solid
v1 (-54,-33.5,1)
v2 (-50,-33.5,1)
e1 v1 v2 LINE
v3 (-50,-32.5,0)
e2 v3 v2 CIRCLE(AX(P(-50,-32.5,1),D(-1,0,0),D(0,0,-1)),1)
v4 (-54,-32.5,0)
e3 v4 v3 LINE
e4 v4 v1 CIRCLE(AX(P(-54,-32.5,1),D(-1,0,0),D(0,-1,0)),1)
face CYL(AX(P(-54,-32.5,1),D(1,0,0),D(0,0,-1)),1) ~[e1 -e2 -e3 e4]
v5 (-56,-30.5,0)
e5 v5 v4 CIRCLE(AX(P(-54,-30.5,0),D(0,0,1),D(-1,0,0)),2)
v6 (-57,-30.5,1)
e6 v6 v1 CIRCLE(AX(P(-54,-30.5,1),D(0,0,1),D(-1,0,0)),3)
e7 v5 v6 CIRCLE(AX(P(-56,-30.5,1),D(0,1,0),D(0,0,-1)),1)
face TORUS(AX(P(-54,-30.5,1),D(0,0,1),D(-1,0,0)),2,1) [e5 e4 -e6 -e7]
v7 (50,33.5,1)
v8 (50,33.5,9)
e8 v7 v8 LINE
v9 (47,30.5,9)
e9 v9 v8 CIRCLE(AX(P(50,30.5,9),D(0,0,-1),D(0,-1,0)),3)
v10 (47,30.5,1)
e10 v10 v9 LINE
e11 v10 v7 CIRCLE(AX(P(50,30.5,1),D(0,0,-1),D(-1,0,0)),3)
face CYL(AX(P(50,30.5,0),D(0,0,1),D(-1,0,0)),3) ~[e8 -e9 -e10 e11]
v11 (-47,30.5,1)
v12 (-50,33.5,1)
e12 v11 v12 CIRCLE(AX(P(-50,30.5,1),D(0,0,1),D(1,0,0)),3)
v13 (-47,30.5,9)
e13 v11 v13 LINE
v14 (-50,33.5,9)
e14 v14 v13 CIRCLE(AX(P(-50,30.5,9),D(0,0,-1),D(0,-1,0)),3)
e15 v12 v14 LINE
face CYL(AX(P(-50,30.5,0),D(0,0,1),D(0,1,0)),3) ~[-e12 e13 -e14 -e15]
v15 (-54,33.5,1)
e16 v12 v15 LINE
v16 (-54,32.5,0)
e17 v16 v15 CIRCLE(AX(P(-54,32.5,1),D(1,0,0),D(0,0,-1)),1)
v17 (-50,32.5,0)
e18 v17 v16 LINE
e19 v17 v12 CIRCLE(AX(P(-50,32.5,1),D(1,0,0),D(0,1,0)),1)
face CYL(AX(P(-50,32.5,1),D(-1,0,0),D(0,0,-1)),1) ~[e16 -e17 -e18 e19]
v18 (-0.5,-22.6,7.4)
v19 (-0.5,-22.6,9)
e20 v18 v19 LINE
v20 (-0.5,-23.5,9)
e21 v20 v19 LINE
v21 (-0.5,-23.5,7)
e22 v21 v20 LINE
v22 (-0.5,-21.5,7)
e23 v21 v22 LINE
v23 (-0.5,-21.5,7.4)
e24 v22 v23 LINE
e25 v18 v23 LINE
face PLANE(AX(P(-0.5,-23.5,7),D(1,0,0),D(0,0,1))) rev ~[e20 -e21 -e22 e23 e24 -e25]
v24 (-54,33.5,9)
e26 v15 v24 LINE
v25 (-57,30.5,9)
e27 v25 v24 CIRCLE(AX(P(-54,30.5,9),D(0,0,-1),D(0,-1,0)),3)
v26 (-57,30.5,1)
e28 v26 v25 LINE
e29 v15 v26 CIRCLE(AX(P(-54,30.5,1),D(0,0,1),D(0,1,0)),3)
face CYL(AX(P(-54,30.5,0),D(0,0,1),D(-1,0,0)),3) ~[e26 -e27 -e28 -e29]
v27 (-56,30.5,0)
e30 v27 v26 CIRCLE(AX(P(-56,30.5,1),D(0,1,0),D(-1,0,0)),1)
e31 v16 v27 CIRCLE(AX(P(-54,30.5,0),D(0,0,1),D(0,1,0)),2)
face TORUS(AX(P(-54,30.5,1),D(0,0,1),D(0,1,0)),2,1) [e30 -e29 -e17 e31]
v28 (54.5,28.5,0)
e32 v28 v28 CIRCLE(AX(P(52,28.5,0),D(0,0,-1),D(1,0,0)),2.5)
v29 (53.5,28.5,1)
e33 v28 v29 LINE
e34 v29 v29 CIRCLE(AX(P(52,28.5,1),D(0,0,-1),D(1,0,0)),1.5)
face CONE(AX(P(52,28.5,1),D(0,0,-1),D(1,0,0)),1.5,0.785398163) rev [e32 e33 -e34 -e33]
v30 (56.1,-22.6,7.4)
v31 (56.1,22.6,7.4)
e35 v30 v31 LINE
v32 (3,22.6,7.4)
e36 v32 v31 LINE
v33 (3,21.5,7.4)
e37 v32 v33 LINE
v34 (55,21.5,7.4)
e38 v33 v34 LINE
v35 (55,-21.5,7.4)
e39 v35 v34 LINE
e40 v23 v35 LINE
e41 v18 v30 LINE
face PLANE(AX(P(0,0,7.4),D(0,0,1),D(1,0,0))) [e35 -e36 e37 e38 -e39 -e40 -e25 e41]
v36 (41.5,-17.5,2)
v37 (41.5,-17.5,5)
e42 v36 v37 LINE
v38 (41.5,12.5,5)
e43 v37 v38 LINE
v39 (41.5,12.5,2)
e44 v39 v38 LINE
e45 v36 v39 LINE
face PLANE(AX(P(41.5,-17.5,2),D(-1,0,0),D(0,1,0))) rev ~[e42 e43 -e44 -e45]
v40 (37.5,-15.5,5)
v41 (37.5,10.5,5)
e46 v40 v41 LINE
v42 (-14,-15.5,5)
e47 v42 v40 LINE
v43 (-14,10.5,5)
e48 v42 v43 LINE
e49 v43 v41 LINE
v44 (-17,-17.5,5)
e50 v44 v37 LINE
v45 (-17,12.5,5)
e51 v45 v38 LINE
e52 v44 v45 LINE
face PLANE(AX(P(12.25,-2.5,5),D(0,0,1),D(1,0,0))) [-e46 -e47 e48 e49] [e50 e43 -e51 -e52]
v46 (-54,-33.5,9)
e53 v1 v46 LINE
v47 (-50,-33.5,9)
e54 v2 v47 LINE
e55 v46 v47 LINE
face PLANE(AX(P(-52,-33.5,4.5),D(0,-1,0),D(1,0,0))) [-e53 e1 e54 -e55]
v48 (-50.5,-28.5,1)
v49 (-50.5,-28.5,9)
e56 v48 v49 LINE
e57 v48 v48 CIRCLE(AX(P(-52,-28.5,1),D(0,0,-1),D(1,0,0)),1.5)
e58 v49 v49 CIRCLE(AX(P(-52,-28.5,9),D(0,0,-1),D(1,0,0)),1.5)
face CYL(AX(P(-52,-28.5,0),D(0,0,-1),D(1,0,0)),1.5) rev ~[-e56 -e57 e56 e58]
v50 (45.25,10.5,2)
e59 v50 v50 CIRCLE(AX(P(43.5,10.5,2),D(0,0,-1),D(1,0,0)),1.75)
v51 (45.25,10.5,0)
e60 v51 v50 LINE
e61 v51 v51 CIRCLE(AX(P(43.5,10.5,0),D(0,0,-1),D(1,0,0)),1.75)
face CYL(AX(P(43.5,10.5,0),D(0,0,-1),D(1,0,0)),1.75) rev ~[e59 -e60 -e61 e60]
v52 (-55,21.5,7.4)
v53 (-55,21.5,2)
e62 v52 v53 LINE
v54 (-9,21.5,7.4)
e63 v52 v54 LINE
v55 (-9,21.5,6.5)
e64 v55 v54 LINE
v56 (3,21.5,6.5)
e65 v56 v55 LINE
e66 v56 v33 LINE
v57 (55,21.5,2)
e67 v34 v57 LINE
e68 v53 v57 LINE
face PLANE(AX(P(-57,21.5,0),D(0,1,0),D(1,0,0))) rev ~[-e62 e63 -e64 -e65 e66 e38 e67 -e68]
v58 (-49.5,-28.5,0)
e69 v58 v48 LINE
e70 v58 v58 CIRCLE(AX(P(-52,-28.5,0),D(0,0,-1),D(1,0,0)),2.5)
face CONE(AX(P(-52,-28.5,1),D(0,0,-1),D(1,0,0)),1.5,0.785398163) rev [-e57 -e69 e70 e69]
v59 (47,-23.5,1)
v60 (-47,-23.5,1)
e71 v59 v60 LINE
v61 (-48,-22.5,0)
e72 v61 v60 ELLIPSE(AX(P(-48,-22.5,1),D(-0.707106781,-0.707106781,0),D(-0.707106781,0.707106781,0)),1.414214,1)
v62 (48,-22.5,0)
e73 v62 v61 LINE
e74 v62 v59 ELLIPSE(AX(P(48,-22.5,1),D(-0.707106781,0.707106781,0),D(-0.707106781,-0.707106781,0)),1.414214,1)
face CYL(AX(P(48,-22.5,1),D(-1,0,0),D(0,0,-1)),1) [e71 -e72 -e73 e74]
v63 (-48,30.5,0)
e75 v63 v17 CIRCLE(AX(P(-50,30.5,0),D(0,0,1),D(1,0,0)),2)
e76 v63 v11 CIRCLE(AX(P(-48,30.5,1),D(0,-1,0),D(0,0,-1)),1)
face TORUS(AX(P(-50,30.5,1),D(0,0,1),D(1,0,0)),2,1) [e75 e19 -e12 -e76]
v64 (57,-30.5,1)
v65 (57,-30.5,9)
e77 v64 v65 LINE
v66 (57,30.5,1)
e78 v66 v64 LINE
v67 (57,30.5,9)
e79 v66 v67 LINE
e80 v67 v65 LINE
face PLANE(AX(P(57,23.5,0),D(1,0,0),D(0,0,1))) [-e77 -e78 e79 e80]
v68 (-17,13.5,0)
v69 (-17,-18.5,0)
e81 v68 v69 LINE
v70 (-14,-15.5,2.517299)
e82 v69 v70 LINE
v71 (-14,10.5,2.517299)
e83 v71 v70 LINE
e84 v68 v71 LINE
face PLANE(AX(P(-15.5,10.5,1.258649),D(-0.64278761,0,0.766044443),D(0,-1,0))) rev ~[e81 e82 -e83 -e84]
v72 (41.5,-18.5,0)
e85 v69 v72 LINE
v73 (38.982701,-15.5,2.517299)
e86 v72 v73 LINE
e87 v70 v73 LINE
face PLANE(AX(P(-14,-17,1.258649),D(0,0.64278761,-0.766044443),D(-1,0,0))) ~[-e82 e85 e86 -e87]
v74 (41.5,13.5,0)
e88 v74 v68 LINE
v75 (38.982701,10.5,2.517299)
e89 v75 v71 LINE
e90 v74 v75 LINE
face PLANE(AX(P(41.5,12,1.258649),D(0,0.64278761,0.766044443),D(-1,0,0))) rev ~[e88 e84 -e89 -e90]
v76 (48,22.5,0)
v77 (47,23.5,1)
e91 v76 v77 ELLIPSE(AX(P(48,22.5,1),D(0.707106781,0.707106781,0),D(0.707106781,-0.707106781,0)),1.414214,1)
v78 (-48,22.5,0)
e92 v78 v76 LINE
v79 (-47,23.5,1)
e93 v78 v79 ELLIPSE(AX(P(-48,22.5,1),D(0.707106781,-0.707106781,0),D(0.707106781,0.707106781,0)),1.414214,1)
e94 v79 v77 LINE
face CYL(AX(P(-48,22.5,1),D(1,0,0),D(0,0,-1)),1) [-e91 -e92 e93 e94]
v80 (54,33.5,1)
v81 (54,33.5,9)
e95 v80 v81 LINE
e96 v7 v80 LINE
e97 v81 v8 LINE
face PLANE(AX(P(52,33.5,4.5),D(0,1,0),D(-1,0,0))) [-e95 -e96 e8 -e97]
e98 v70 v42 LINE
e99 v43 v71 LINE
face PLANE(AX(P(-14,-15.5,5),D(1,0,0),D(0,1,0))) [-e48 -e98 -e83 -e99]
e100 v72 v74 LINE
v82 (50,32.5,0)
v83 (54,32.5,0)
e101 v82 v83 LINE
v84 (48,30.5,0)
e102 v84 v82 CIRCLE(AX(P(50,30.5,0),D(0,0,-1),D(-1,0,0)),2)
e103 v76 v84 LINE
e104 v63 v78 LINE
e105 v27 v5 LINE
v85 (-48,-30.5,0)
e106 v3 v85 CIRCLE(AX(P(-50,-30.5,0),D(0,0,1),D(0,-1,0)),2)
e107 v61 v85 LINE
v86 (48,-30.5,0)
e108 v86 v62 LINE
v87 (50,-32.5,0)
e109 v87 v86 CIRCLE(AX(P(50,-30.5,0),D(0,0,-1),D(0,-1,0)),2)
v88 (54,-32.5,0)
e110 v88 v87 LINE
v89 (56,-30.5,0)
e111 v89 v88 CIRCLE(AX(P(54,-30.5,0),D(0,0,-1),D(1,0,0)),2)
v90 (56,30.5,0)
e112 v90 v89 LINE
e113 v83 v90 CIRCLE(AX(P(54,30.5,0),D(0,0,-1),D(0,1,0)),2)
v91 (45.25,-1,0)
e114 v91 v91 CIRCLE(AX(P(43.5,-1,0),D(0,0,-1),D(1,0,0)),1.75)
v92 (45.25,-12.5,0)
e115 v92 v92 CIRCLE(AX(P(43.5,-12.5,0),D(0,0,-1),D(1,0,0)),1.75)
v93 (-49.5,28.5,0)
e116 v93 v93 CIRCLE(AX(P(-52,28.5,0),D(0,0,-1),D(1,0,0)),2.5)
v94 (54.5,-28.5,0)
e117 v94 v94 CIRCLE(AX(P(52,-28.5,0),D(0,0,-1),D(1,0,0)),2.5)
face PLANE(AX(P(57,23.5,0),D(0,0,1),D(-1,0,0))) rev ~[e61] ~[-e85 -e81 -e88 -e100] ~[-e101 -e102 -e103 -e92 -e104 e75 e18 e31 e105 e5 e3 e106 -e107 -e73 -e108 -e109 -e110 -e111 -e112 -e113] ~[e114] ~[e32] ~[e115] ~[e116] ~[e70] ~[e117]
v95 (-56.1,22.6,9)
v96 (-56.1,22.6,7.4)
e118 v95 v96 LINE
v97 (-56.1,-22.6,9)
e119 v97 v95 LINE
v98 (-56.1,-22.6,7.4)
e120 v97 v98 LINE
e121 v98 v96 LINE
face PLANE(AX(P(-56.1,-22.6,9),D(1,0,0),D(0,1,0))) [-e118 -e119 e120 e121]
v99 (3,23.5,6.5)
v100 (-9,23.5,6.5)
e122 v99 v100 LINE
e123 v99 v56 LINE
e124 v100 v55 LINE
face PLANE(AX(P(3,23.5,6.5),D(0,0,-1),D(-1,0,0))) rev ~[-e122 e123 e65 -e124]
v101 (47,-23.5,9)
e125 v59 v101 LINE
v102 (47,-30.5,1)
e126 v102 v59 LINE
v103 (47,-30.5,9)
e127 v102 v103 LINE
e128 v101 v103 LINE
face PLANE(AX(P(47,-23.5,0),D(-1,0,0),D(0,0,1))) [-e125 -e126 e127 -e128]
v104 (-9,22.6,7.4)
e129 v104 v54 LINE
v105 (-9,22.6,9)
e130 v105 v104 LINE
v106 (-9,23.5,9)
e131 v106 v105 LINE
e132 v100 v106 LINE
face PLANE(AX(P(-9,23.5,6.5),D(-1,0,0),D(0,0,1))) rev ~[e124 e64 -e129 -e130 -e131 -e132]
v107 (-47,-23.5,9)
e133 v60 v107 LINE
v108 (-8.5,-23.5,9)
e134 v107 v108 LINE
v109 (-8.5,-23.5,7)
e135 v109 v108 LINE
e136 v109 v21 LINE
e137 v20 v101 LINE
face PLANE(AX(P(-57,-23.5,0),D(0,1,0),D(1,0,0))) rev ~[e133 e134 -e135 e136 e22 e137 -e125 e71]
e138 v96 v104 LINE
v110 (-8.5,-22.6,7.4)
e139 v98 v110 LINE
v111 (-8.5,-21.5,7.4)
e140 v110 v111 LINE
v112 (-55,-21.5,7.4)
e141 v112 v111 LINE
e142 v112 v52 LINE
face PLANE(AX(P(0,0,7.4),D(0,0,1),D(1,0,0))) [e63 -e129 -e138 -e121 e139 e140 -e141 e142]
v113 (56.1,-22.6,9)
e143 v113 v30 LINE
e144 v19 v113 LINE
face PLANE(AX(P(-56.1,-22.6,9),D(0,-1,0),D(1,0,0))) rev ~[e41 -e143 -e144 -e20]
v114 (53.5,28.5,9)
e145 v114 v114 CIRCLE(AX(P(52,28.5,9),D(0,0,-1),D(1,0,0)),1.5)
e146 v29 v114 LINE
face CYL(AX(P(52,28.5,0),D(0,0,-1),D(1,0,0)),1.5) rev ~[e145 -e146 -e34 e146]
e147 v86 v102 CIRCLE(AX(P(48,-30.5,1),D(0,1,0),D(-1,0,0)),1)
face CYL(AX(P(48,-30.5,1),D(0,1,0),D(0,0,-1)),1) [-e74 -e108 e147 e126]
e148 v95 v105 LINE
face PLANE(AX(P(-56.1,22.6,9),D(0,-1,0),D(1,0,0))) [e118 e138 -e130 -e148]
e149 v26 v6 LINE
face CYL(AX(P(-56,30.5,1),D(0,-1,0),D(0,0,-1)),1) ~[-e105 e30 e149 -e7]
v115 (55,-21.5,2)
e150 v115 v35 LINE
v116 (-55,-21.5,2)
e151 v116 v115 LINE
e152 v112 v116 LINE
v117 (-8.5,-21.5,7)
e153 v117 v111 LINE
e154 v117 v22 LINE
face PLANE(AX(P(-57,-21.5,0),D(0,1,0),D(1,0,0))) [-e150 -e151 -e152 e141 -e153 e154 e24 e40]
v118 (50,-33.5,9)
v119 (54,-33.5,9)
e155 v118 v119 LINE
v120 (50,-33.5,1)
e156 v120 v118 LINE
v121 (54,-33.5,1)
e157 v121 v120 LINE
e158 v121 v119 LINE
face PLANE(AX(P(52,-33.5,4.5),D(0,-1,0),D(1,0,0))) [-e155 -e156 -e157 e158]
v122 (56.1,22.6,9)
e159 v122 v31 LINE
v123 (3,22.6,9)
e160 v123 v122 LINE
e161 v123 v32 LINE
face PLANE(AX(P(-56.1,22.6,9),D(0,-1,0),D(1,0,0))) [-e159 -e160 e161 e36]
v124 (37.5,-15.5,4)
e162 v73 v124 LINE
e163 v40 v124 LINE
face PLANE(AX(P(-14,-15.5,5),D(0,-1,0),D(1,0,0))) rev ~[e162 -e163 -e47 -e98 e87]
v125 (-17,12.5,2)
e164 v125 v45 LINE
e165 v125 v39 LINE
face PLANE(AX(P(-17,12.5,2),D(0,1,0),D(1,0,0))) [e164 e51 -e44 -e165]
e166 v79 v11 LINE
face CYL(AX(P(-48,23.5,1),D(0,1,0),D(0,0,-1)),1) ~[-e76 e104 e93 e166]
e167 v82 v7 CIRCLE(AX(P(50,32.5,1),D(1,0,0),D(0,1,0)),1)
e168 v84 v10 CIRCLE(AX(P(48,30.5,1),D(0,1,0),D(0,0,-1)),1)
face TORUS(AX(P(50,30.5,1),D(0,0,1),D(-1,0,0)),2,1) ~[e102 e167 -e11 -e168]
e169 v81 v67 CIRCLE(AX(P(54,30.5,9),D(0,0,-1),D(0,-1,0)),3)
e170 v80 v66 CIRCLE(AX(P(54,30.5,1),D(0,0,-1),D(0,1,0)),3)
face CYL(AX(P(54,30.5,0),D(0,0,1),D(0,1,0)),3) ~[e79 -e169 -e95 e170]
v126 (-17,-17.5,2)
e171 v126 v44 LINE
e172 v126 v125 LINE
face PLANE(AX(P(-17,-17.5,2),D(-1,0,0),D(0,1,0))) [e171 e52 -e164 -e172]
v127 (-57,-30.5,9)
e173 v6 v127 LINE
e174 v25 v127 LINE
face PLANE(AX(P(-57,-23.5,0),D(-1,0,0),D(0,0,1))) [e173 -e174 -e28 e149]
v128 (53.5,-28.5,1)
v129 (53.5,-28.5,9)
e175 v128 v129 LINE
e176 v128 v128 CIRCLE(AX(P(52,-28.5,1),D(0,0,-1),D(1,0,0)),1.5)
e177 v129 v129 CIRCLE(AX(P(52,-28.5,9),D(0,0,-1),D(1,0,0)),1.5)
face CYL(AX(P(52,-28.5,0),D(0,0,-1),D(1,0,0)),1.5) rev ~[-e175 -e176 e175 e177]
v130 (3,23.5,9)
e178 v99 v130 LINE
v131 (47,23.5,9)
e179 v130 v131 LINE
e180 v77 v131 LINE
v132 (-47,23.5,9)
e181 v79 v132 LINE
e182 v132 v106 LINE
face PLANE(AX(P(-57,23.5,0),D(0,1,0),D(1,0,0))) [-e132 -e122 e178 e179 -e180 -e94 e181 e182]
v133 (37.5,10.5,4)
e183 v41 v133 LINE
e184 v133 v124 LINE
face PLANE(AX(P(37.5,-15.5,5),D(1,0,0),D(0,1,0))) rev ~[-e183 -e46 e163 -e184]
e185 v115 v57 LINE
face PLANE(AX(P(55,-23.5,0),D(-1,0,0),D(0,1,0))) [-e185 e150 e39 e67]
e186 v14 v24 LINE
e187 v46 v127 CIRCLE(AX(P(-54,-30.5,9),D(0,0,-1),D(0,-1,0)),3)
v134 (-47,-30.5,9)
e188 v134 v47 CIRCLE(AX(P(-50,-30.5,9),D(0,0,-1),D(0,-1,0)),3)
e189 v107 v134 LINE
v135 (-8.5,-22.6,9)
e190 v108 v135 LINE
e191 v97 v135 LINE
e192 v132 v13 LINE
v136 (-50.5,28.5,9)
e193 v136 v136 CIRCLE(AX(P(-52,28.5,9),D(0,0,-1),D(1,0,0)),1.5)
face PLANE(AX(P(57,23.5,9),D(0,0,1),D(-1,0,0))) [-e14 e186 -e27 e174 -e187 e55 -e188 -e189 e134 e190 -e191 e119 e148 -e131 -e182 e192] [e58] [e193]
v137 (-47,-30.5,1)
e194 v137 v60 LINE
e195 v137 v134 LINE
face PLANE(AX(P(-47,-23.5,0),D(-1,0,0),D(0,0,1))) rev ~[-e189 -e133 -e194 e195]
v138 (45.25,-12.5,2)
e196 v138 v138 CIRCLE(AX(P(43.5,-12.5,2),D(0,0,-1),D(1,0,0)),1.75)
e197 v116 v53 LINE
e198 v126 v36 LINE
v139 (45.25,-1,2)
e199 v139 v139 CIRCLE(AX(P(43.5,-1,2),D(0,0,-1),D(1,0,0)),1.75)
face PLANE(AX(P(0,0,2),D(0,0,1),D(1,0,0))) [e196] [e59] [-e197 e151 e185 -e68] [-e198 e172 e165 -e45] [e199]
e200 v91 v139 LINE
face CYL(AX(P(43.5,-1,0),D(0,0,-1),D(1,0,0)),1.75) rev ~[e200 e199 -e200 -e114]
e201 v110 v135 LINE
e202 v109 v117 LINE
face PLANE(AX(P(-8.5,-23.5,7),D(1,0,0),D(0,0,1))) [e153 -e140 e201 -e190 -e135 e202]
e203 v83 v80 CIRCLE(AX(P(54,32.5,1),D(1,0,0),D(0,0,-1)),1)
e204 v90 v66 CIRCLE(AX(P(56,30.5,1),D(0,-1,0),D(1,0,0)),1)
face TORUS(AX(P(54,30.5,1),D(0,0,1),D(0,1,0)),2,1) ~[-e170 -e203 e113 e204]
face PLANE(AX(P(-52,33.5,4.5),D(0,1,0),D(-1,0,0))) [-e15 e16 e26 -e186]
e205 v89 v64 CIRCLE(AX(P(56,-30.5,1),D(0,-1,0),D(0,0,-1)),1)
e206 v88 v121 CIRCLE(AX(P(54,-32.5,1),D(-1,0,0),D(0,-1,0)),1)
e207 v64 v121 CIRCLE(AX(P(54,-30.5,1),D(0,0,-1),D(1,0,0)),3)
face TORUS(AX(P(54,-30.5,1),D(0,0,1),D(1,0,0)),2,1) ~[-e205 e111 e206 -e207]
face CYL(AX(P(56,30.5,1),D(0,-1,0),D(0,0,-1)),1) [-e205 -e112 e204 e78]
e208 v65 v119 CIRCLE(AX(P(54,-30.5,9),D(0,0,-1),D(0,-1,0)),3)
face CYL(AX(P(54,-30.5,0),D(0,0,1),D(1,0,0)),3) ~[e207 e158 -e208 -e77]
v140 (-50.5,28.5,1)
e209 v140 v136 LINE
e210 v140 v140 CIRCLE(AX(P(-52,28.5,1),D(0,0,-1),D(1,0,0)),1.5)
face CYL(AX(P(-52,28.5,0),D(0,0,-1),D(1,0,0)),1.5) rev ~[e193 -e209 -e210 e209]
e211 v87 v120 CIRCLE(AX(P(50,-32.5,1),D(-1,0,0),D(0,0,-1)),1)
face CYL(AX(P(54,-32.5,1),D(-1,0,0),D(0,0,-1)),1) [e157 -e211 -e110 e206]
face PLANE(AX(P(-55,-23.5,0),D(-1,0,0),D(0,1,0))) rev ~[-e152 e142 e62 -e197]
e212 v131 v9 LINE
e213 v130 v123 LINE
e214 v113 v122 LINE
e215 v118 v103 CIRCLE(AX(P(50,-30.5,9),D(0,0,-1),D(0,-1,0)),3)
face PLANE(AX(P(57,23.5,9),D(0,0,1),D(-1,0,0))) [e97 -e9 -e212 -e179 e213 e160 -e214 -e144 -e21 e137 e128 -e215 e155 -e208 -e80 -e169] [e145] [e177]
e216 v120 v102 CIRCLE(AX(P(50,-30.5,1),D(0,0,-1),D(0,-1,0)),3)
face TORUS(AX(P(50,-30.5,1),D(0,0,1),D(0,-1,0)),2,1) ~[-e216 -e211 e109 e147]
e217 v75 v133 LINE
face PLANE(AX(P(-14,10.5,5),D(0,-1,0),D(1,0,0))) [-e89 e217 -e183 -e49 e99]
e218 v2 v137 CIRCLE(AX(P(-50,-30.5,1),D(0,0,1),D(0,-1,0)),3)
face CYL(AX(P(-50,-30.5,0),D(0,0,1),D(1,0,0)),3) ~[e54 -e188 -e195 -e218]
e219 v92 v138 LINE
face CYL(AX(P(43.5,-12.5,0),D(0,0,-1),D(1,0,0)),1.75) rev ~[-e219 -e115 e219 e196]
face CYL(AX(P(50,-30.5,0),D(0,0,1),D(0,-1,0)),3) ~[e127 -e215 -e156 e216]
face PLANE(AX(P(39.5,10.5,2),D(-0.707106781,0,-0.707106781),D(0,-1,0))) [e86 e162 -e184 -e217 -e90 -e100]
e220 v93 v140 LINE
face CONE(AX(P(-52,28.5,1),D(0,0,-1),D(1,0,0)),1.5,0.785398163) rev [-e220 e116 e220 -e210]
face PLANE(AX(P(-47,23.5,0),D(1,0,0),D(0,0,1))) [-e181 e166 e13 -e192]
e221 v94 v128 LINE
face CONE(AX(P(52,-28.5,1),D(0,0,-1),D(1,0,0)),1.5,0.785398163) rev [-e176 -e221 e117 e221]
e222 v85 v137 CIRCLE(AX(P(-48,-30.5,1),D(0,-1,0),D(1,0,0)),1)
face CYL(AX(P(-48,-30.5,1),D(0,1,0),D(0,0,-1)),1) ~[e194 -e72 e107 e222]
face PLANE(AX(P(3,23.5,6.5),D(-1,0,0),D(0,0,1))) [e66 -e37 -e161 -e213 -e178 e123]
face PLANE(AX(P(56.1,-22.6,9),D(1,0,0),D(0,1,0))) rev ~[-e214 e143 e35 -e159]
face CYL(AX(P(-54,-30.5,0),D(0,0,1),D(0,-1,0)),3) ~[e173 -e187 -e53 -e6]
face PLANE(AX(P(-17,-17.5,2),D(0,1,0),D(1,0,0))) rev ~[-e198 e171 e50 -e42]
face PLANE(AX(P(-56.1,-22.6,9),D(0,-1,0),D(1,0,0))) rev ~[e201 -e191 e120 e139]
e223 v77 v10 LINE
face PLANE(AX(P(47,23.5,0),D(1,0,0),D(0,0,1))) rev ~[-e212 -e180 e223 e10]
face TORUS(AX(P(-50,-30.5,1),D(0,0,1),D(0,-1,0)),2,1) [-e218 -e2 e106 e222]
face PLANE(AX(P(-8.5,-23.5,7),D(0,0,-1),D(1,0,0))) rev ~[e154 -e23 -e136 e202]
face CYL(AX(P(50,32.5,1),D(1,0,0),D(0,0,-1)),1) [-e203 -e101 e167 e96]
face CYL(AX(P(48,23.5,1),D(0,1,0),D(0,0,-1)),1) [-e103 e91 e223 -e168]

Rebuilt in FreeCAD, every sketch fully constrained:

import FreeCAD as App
import Part
import Sketcher
from FreeCAD import Vector


def edges_at(feature, points):
    """Names of the edges that pass closest to the given points."""
    edges = feature.Shape.Edges
    near = lambda p: min(range(len(edges)), key=lambda i: edges[i].distToShape(Part.Vertex(*p))[0])
    return sorted({f"Edge{near(p) + 1}" for p in points})


def faces_at(feature, points):
    """Names of the faces that lie closest to the given points."""
    faces = feature.Shape.Faces
    near = lambda p: min(range(len(faces)), key=lambda i: faces[i].distToShape(Part.Vertex(*p))[0])
    return sorted({f"Face{near(p) + 1}" for p in points})

doc = App.newDocument("Part")
body = doc.addObject("PartDesign::Body", "Body")

sketch1 = doc.addObject("Sketcher::SketchObject", "Sketch")
body.addObject(sketch1)
sketch1.AttachmentSupport = (doc.XY_Plane, [""])
sketch1.MapMode = "FlatFace"
sketch1.addGeometry(Part.LineSegment(Vector(-57, 23.5, 0), Vector(-57, -23.5, 0)), False)
sketch1.addGeometry(Part.LineSegment(Vector(-57, -23.5, 0), Vector(57, -23.5, 0)), False)
sketch1.addGeometry(Part.LineSegment(Vector(57, -23.5, 0), Vector(57, 23.5, 0)), False)
sketch1.addGeometry(Part.LineSegment(Vector(57, 23.5, 0), Vector(-57, 23.5, 0)), False)
sketch1.addConstraint(Sketcher.Constraint("Coincident", 0, 2, 1, 1))
sketch1.addConstraint(Sketcher.Constraint("Coincident", 1, 2, 2, 1))
sketch1.addConstraint(Sketcher.Constraint("Coincident", 2, 2, 3, 1))
sketch1.addConstraint(Sketcher.Constraint("Coincident", 3, 2, 0, 1))
sketch1.addConstraint(Sketcher.Constraint("Vertical", 0))
sketch1.addConstraint(Sketcher.Constraint("Horizontal", 1))
sketch1.addConstraint(Sketcher.Constraint("Vertical", 2))
sketch1.addConstraint(Sketcher.Constraint("Horizontal", 3))
sketch1.addConstraint(Sketcher.Constraint("Symmetric", 0, 2, 2, 2, -1, 1))
sketch1.addConstraint(Sketcher.Constraint("DistanceX", 1, 1, 1, 2, 114.0))
sketch1.addConstraint(Sketcher.Constraint("DistanceY", 0, 2, 0, 1, 47.0))
pad1 = doc.addObject("PartDesign::Pad", "Pad")
body.addObject(pad1)
pad1.Profile = sketch1
pad1.Length = 9
doc.recompute()

thickness = doc.addObject("PartDesign::Thickness", "Thickness")
body.addObject(thickness)
thickness.Base = (pad1, faces_at(pad1, [(0, 0, 9)]))
thickness.Value = 2
thickness.Reversed = True
thickness.Join = "Arc"

sketch2 = doc.addObject("Sketcher::SketchObject", "Sketch001")
body.addObject(sketch2)
sketch2.AttachmentSupport = (doc.XZ_Plane, [""])
sketch2.MapMode = "FlatFace"
sketch2.AttachmentOffset = App.Placement(Vector(0, 0, 23.5), App.Rotation())
sketch2.addGeometry(Part.LineSegment(Vector(-57, 9, 0), Vector(-57, 0, 0)), False)
sketch2.addGeometry(Part.LineSegment(Vector(-57, 0, 0), Vector(-47, 0, 0)), False)
sketch2.addGeometry(Part.LineSegment(Vector(-47, 0, 0), Vector(-47, 9, 0)), False)
sketch2.addGeometry(Part.LineSegment(Vector(-47, 9, 0), Vector(-57, 9, 0)), False)
sketch2.addGeometry(Part.LineSegment(Vector(47, 9, 0), Vector(47, 0, 0)), False)
sketch2.addGeometry(Part.LineSegment(Vector(47, 0, 0), Vector(57, 0, 0)), False)
sketch2.addGeometry(Part.LineSegment(Vector(57, 0, 0), Vector(57, 9, 0)), False)
sketch2.addGeometry(Part.LineSegment(Vector(57, 9, 0), Vector(47, 9, 0)), False)
sketch2.addConstraint(Sketcher.Constraint("Coincident", 0, 2, 1, 1))
sketch2.addConstraint(Sketcher.Constraint("Coincident", 1, 2, 2, 1))
sketch2.addConstraint(Sketcher.Constraint("Coincident", 2, 2, 3, 1))
sketch2.addConstraint(Sketcher.Constraint("Coincident", 3, 2, 0, 1))
sketch2.addConstraint(Sketcher.Constraint("Coincident", 4, 2, 5, 1))
sketch2.addConstraint(Sketcher.Constraint("Coincident", 5, 2, 6, 1))
sketch2.addConstraint(Sketcher.Constraint("Coincident", 6, 2, 7, 1))
sketch2.addConstraint(Sketcher.Constraint("Coincident", 7, 2, 4, 1))
sketch2.addConstraint(Sketcher.Constraint("Vertical", 0))
sketch2.addConstraint(Sketcher.Constraint("Horizontal", 1))
sketch2.addConstraint(Sketcher.Constraint("Vertical", 2))
sketch2.addConstraint(Sketcher.Constraint("Horizontal", 3))
sketch2.addConstraint(Sketcher.Constraint("Vertical", 4))
sketch2.addConstraint(Sketcher.Constraint("Horizontal", 5))
sketch2.addConstraint(Sketcher.Constraint("Vertical", 6))
sketch2.addConstraint(Sketcher.Constraint("Horizontal", 7))
sketch2.addConstraint(Sketcher.Constraint("Symmetric", 1, 2, 4, 2, -1, 1))
sketch2.addConstraint(Sketcher.Constraint("Symmetric", 0, 2, 5, 2, -2))
sketch2.addConstraint(Sketcher.Constraint("Horizontal", 3, 2, 6, 2))
sketch2.addConstraint(Sketcher.Constraint("DistanceX", 1, 1, 1, 2, 10.0))
sketch2.addConstraint(Sketcher.Constraint("DistanceY", 0, 2, 0, 1, 9.0))
sketch2.addConstraint(Sketcher.Constraint("DistanceX", 0, 2, -1, 1, 57.0))
pad2 = doc.addObject("PartDesign::Pad", "Pad001")
body.addObject(pad2)
pad2.Profile = sketch2
pad2.Length = 10

sketch3 = doc.addObject("Sketcher::SketchObject", "Sketch002")
body.addObject(sketch3)
sketch3.AttachmentSupport = (doc.XZ_Plane, [""])
sketch3.MapMode = "FlatFace"
sketch3.AttachmentOffset = App.Placement(Vector(0, 0, -23.5), App.Rotation())
sketch3.addGeometry(Part.LineSegment(Vector(57, 9, 0), Vector(57, 0, 0)), False)
sketch3.addGeometry(Part.LineSegment(Vector(57, 0, 0), Vector(47, 0, 0)), False)
sketch3.addGeometry(Part.LineSegment(Vector(47, 0, 0), Vector(47, 9, 0)), False)
sketch3.addGeometry(Part.LineSegment(Vector(47, 9, 0), Vector(57, 9, 0)), False)
sketch3.addGeometry(Part.LineSegment(Vector(-47, 9, 0), Vector(-47, 0, 0)), False)
sketch3.addGeometry(Part.LineSegment(Vector(-47, 0, 0), Vector(-57, 0, 0)), False)
sketch3.addGeometry(Part.LineSegment(Vector(-57, 0, 0), Vector(-57, 9, 0)), False)
sketch3.addGeometry(Part.LineSegment(Vector(-57, 9, 0), Vector(-47, 9, 0)), False)
sketch3.addConstraint(Sketcher.Constraint("Coincident", 0, 2, 1, 1))
sketch3.addConstraint(Sketcher.Constraint("Coincident", 1, 2, 2, 1))
sketch3.addConstraint(Sketcher.Constraint("Coincident", 2, 2, 3, 1))
sketch3.addConstraint(Sketcher.Constraint("Coincident", 3, 2, 0, 1))
sketch3.addConstraint(Sketcher.Constraint("Coincident", 4, 2, 5, 1))
sketch3.addConstraint(Sketcher.Constraint("Coincident", 5, 2, 6, 1))
sketch3.addConstraint(Sketcher.Constraint("Coincident", 6, 2, 7, 1))
sketch3.addConstraint(Sketcher.Constraint("Coincident", 7, 2, 4, 1))
sketch3.addConstraint(Sketcher.Constraint("Vertical", 0))
sketch3.addConstraint(Sketcher.Constraint("Horizontal", 1))
sketch3.addConstraint(Sketcher.Constraint("Vertical", 2))
sketch3.addConstraint(Sketcher.Constraint("Horizontal", 3))
sketch3.addConstraint(Sketcher.Constraint("Vertical", 4))
sketch3.addConstraint(Sketcher.Constraint("Horizontal", 5))
sketch3.addConstraint(Sketcher.Constraint("Vertical", 6))
sketch3.addConstraint(Sketcher.Constraint("Horizontal", 7))
sketch3.addConstraint(Sketcher.Constraint("Symmetric", 1, 2, 4, 2, -1, 1))
sketch3.addConstraint(Sketcher.Constraint("Symmetric", 0, 2, 5, 2, -2))
sketch3.addConstraint(Sketcher.Constraint("Horizontal", 3, 2, 6, 2))
sketch3.addConstraint(Sketcher.Constraint("DistanceX", 1, 2, 1, 1, 10.0))
sketch3.addConstraint(Sketcher.Constraint("DistanceY", 0, 2, 0, 1, 9.0))
sketch3.addConstraint(Sketcher.Constraint("DistanceX", -1, 1, 0, 2, 57.0))
pad3 = doc.addObject("PartDesign::Pad", "Pad002")
body.addObject(pad3)
pad3.Profile = sketch3
pad3.Length = 10
pad3.Reversed = True

sketch4 = doc.addObject("Sketcher::SketchObject", "Sketch003")
body.addObject(sketch4)
sketch4.AttachmentSupport = (doc.XY_Plane, [""])
sketch4.MapMode = "FlatFace"
sketch4.AttachmentOffset = App.Placement(Vector(0, 0, 9), App.Rotation())
sketch4.addGeometry(Part.LineSegment(Vector(-56.1, 22.6, 0), Vector(-56.1, -22.6, 0)), False)
sketch4.addGeometry(Part.LineSegment(Vector(-56.1, -22.6, 0), Vector(56.1, -22.6, 0)), False)
sketch4.addGeometry(Part.LineSegment(Vector(56.1, -22.6, 0), Vector(56.1, 22.6, 0)), False)
sketch4.addGeometry(Part.LineSegment(Vector(56.1, 22.6, 0), Vector(-56.1, 22.6, 0)), False)
sketch4.addConstraint(Sketcher.Constraint("Coincident", 0, 2, 1, 1))
sketch4.addConstraint(Sketcher.Constraint("Coincident", 1, 2, 2, 1))
sketch4.addConstraint(Sketcher.Constraint("Coincident", 2, 2, 3, 1))
sketch4.addConstraint(Sketcher.Constraint("Coincident", 3, 2, 0, 1))
sketch4.addConstraint(Sketcher.Constraint("Vertical", 0))
sketch4.addConstraint(Sketcher.Constraint("Horizontal", 1))
sketch4.addConstraint(Sketcher.Constraint("Vertical", 2))
sketch4.addConstraint(Sketcher.Constraint("Horizontal", 3))
sketch4.addConstraint(Sketcher.Constraint("Symmetric", 0, 2, 2, 2, -1, 1))
sketch4.addConstraint(Sketcher.Constraint("DistanceX", 1, 1, 1, 2, 112.2))
sketch4.addConstraint(Sketcher.Constraint("DistanceY", 0, 2, 0, 1, 45.2))
pocket1 = doc.addObject("PartDesign::Pocket", "Pocket")
body.addObject(pocket1)
pocket1.Profile = sketch4
pocket1.Length = 1.6

sketch5 = doc.addObject("Sketcher::SketchObject", "Sketch004")
body.addObject(sketch5)
sketch5.AttachmentSupport = (doc.XY_Plane, [""])
sketch5.MapMode = "FlatFace"
sketch5.addGeometry(Part.Circle(Vector(-52, -28.5, 0), Vector(0, 0, 1), 1.5), False)
sketch5.addGeometry(Part.Circle(Vector(52, -28.5, 0), Vector(0, 0, 1), 1.5), False)
sketch5.addGeometry(Part.Circle(Vector(52, 28.5, 0), Vector(0, 0, 1), 1.5), False)
sketch5.addGeometry(Part.Circle(Vector(-52, 28.5, 0), Vector(0, 0, 1), 1.5), False)
sketch5.addConstraint(Sketcher.Constraint("Equal", 0, 1))
sketch5.addConstraint(Sketcher.Constraint("Equal", 1, 2))
sketch5.addConstraint(Sketcher.Constraint("Equal", 2, 3))
sketch5.addConstraint(Sketcher.Constraint("Symmetric", 0, 3, 2, 3, -1, 1))
sketch5.addConstraint(Sketcher.Constraint("Symmetric", 1, 3, 3, 3, -1, 1))
sketch5.addConstraint(Sketcher.Constraint("Symmetric", 0, 3, 1, 3, -2))
sketch5.addConstraint(Sketcher.Constraint("Diameter", 0, 3.0))
sketch5.addConstraint(Sketcher.Constraint("DistanceX", 0, 3, -1, 1, 52.0))
sketch5.addConstraint(Sketcher.Constraint("DistanceY", 1, 3, 2, 3, 57.0))
pocket2 = doc.addObject("PartDesign::Pocket", "Pocket001")
body.addObject(pocket2)
pocket2.Profile = sketch5
pocket2.Length = 9
pocket2.Reversed = True

sketch6 = doc.addObject("Sketcher::SketchObject", "Sketch005")
body.addObject(sketch6)
sketch6.AttachmentSupport = (doc.XY_Plane, [""])
sketch6.MapMode = "FlatFace"
sketch6.addGeometry(Part.LineSegment(Vector(-14, -15.5, 0), Vector(-14, 10.5, 0)), False)
sketch6.addGeometry(Part.LineSegment(Vector(-14, 10.5, 0), Vector(37.5, 10.5, 0)), False)
sketch6.addGeometry(Part.LineSegment(Vector(37.5, 10.5, 0), Vector(37.5, -15.5, 0)), False)
sketch6.addGeometry(Part.LineSegment(Vector(37.5, -15.5, 0), Vector(-14, -15.5, 0)), False)
sketch6.addConstraint(Sketcher.Constraint("Coincident", 0, 2, 1, 1))
sketch6.addConstraint(Sketcher.Constraint("Coincident", 1, 2, 2, 1))
sketch6.addConstraint(Sketcher.Constraint("Coincident", 2, 2, 3, 1))
sketch6.addConstraint(Sketcher.Constraint("Coincident", 3, 2, 0, 1))
sketch6.addConstraint(Sketcher.Constraint("Vertical", 0))
sketch6.addConstraint(Sketcher.Constraint("Horizontal", 1))
sketch6.addConstraint(Sketcher.Constraint("Vertical", 2))
sketch6.addConstraint(Sketcher.Constraint("Horizontal", 3))
sketch6.addConstraint(Sketcher.Constraint("DistanceY", 0, 1, 0, 2, 26.0))
sketch6.addConstraint(Sketcher.Constraint("DistanceX", 1, 1, 1, 2, 51.5))
sketch6.addConstraint(Sketcher.Constraint("DistanceX", 0, 2, -1, 1, 14.0))
sketch6.addConstraint(Sketcher.Constraint("DistanceY", -1, 1, 0, 2, 10.5))
pocket3 = doc.addObject("PartDesign::Pocket", "Pocket002")
body.addObject(pocket3)
pocket3.Profile = sketch6
pocket3.Length = 7
pocket3.Reversed = True

sketch7 = doc.addObject("Sketcher::SketchObject", "Sketch006")
body.addObject(sketch7)
sketch7.AttachmentSupport = (doc.XY_Plane, [""])
sketch7.MapMode = "FlatFace"
sketch7.AttachmentOffset = App.Placement(Vector(0, 0, 2), App.Rotation())
sketch7.addGeometry(Part.LineSegment(Vector(-17, 12.5, 0), Vector(-17, -17.5, 0)), False)
sketch7.addGeometry(Part.LineSegment(Vector(-17, -17.5, 0), Vector(41.5, -17.5, 0)), False)
sketch7.addGeometry(Part.LineSegment(Vector(41.5, -17.5, 0), Vector(41.5, 12.5, 0)), False)
sketch7.addGeometry(Part.LineSegment(Vector(41.5, 12.5, 0), Vector(-17, 12.5, 0)), False)
sketch7.addConstraint(Sketcher.Constraint("Coincident", 0, 2, 1, 1))
sketch7.addConstraint(Sketcher.Constraint("Coincident", 1, 2, 2, 1))
sketch7.addConstraint(Sketcher.Constraint("Coincident", 2, 2, 3, 1))
sketch7.addConstraint(Sketcher.Constraint("Coincident", 3, 2, 0, 1))
sketch7.addConstraint(Sketcher.Constraint("Vertical", 0))
sketch7.addConstraint(Sketcher.Constraint("Horizontal", 1))
sketch7.addConstraint(Sketcher.Constraint("Vertical", 2))
sketch7.addConstraint(Sketcher.Constraint("Horizontal", 3))
sketch7.addConstraint(Sketcher.Constraint("DistanceY", 0, 2, 0, 1, 30.0))
sketch7.addConstraint(Sketcher.Constraint("DistanceX", 1, 1, 1, 2, 58.5))
sketch7.addConstraint(Sketcher.Constraint("DistanceX", 0, 2, -1, 1, 17.0))
sketch7.addConstraint(Sketcher.Constraint("DistanceY", 0, 2, -1, 1, 17.5))
pad4 = doc.addObject("PartDesign::Pad", "Pad003")
body.addObject(pad4)
pad4.Profile = sketch7
pad4.Length = 3

sketch8 = doc.addObject("Sketcher::SketchObject", "Sketch007")
body.addObject(sketch8)
sketch8.AttachmentSupport = (doc.XY_Plane, [""])
sketch8.MapMode = "FlatFace"
sketch8.AttachmentOffset = App.Placement(Vector(0, 0, 5), App.Rotation())
sketch8.addGeometry(Part.LineSegment(Vector(-14, 10.5, 0), Vector(-14, -15.5, 0)), False)
sketch8.addGeometry(Part.LineSegment(Vector(-14, -15.5, 0), Vector(37.5, -15.5, 0)), False)
sketch8.addGeometry(Part.LineSegment(Vector(37.5, -15.5, 0), Vector(37.5, 10.5, 0)), False)
sketch8.addGeometry(Part.LineSegment(Vector(37.5, 10.5, 0), Vector(-14, 10.5, 0)), False)
sketch8.addConstraint(Sketcher.Constraint("Coincident", 0, 2, 1, 1))
sketch8.addConstraint(Sketcher.Constraint("Coincident", 1, 2, 2, 1))
sketch8.addConstraint(Sketcher.Constraint("Coincident", 2, 2, 3, 1))
sketch8.addConstraint(Sketcher.Constraint("Coincident", 3, 2, 0, 1))
sketch8.addConstraint(Sketcher.Constraint("Vertical", 0))
sketch8.addConstraint(Sketcher.Constraint("Horizontal", 1))
sketch8.addConstraint(Sketcher.Constraint("Vertical", 2))
sketch8.addConstraint(Sketcher.Constraint("Horizontal", 3))
sketch8.addConstraint(Sketcher.Constraint("DistanceY", 0, 2, 0, 1, 26.0))
sketch8.addConstraint(Sketcher.Constraint("DistanceX", 1, 1, 1, 2, 51.5))
sketch8.addConstraint(Sketcher.Constraint("DistanceX", 0, 2, -1, 1, 14.0))
sketch8.addConstraint(Sketcher.Constraint("DistanceY", 0, 2, -1, 1, 15.5))
pocket4 = doc.addObject("PartDesign::Pocket", "Pocket003")
body.addObject(pocket4)
pocket4.Profile = sketch8
pocket4.Length = 3

sketch9 = doc.addObject("Sketcher::SketchObject", "Sketch008")
body.addObject(sketch9)
sketch9.AttachmentSupport = (doc.XY_Plane, [""])
sketch9.MapMode = "FlatFace"
sketch9.addGeometry(Part.Circle(Vector(43.5, 10.5, 0), Vector(0, 0, 1), 1.75), False)
sketch9.addGeometry(Part.Circle(Vector(43.5, -1, 0), Vector(0, 0, 1), 1.75), False)
sketch9.addGeometry(Part.Circle(Vector(43.5, -12.5, 0), Vector(0, 0, 1), 1.75), False)
sketch9.addConstraint(Sketcher.Constraint("Equal", 0, 1))
sketch9.addConstraint(Sketcher.Constraint("Equal", 1, 2))
sketch9.addConstraint(Sketcher.Constraint("Vertical", 0, 3, 1, 3))
sketch9.addConstraint(Sketcher.Constraint("Vertical", 1, 3, 2, 3))
sketch9.addConstraint(Sketcher.Constraint("Diameter", 0, 3.5))
sketch9.addConstraint(Sketcher.Constraint("DistanceY", 1, 3, -1, 1, 1.0))
sketch9.addConstraint(Sketcher.Constraint("DistanceY", 2, 3, 0, 3, 23.0))
sketch9.addConstraint(Sketcher.Constraint("DistanceX", -1, 1, 0, 3, 43.5))
sketch9.addConstraint(Sketcher.Constraint("DistanceY", -1, 1, 0, 3, 10.5))
pocket5 = doc.addObject("PartDesign::Pocket", "Pocket004")
body.addObject(pocket5)
pocket5.Profile = sketch9
pocket5.Length = 2
pocket5.Reversed = True
doc.recompute()

chamfer = doc.addObject("PartDesign::Chamfer", "Chamfer")
body.addObject(chamfer)
chamfer.Base = (pocket5, edges_at(pocket5, [
    (50.5, 28.5, 0),
    (50.5, -28.5, 0),
    (-53.5, -28.5, 0),
    (-53.5, 28.5, 0),
]))
chamfer.Size = 1
doc.recompute()

chamfer2 = doc.addObject("PartDesign::Chamfer", "Chamfer001")
body.addObject(chamfer2)
chamfer2.Base = (chamfer, edges_at(chamfer, [(37.5, -2.5, 0)]))
chamfer2.Size = 4
doc.recompute()

chamfer3 = doc.addObject("PartDesign::Chamfer", "Chamfer002")
body.addObject(chamfer3)
chamfer3.Base = (chamfer2, edges_at(chamfer2, [(13.75, -15.5, 0), (-14, -2.5, 0), (13.75, 10.5, 0)]))
chamfer3.ChamferType = "Distance and Angle"
chamfer3.Size = 3
chamfer3.Angle = 40
doc.recompute()

fillet = doc.addObject("PartDesign::Fillet", "Fillet")
body.addObject(fillet)
fillet.Base = (chamfer3, edges_at(chamfer3, [
    (57, -33.5, 4.5),
    (47, -33.5, 4.5),
    (-47, -33.5, 4.5),
    (-57, -33.5, 4.5),
]))
fillet.Radius = 3
doc.recompute()

fillet2 = doc.addObject("PartDesign::Fillet", "Fillet001")
body.addObject(fillet2)
fillet2.Base = (fillet, edges_at(fillet, [
    (-57, 33.5, 4.5),
    (-47, 33.5, 4.5),
    (47, 33.5, 4.5),
    (57, 33.5, 4.5),
]))
fillet2.Radius = 3
doc.recompute()

fillet3 = doc.addObject("PartDesign::Fillet", "Fillet002")
body.addObject(fillet3)
fillet3.Base = (fillet2, edges_at(fillet2, [(-47, 27, 0), (-47, -27, 0), (-57, 0, 0)]))
fillet3.Radius = 1
doc.recompute()

fillet4 = doc.addObject("PartDesign::Fillet", "Fillet003")
body.addObject(fillet4)
fillet4.Base = (fillet3, edges_at(fillet3, [(47, 27, 0), (57, 0, 0), (47, -27, 0)]))
fillet4.Radius = 1
doc.recompute()

fillet5 = doc.addObject("PartDesign::Fillet", "Fillet004")
body.addObject(fillet5)
fillet5.Base = (fillet4, edges_at(fillet4, [(0, 23.5, 0), (0, -23.5, 0)]))
fillet5.Radius = 1

sketch10 = doc.addObject("Sketcher::SketchObject", "Sketch009")
body.addObject(sketch10)
sketch10.AttachmentSupport = (doc.XZ_Plane, [""])
sketch10.MapMode = "FlatFace"
sketch10.AttachmentOffset = App.Placement(Vector(0, 0, -23.5), App.Rotation())
sketch10.addGeometry(Part.LineSegment(Vector(3, 9, 0), Vector(3, 6.5, 0)), False)
sketch10.addGeometry(Part.LineSegment(Vector(3, 6.5, 0), Vector(-9, 6.5, 0)), False)
sketch10.addGeometry(Part.LineSegment(Vector(-9, 6.5, 0), Vector(-9, 9, 0)), False)
sketch10.addGeometry(Part.LineSegment(Vector(-9, 9, 0), Vector(3, 9, 0)), False)
sketch10.addConstraint(Sketcher.Constraint("Coincident", 0, 2, 1, 1))
sketch10.addConstraint(Sketcher.Constraint("Coincident", 1, 2, 2, 1))
sketch10.addConstraint(Sketcher.Constraint("Coincident", 2, 2, 3, 1))
sketch10.addConstraint(Sketcher.Constraint("Coincident", 3, 2, 0, 1))
sketch10.addConstraint(Sketcher.Constraint("Vertical", 0))
sketch10.addConstraint(Sketcher.Constraint("Horizontal", 1))
sketch10.addConstraint(Sketcher.Constraint("Vertical", 2))
sketch10.addConstraint(Sketcher.Constraint("Horizontal", 3))
sketch10.addConstraint(Sketcher.Constraint("DistanceX", 1, 2, 1, 1, 12.0))
sketch10.addConstraint(Sketcher.Constraint("DistanceY", 0, 2, 0, 1, 2.5))
sketch10.addConstraint(Sketcher.Constraint("DistanceX", -1, 1, 0, 2, 3.0))
sketch10.addConstraint(Sketcher.Constraint("DistanceY", -1, 1, 2, 2, 9.0))
pocket6 = doc.addObject("PartDesign::Pocket", "Pocket005")
body.addObject(pocket6)
pocket6.Profile = sketch10
pocket6.Length = 2
pocket6.Reversed = True

sketch11 = doc.addObject("Sketcher::SketchObject", "Sketch010")
body.addObject(sketch11)
sketch11.AttachmentSupport = (doc.XZ_Plane, [""])
sketch11.MapMode = "FlatFace"
sketch11.AttachmentOffset = App.Placement(Vector(0, 0, 23.5), App.Rotation())
sketch11.addGeometry(Part.LineSegment(Vector(-8.5, 9, 0), Vector(-8.5, 7, 0)), False)
sketch11.addGeometry(Part.LineSegment(Vector(-8.5, 7, 0), Vector(-0.5, 7, 0)), False)
sketch11.addGeometry(Part.LineSegment(Vector(-0.5, 7, 0), Vector(-0.5, 9, 0)), False)
sketch11.addGeometry(Part.LineSegment(Vector(-0.5, 9, 0), Vector(-8.5, 9, 0)), False)
sketch11.addConstraint(Sketcher.Constraint("Coincident", 0, 2, 1, 1))
sketch11.addConstraint(Sketcher.Constraint("Coincident", 1, 2, 2, 1))
sketch11.addConstraint(Sketcher.Constraint("Coincident", 2, 2, 3, 1))
sketch11.addConstraint(Sketcher.Constraint("Coincident", 3, 2, 0, 1))
sketch11.addConstraint(Sketcher.Constraint("Vertical", 0))
sketch11.addConstraint(Sketcher.Constraint("Horizontal", 1))
sketch11.addConstraint(Sketcher.Constraint("Vertical", 2))
sketch11.addConstraint(Sketcher.Constraint("Horizontal", 3))
sketch11.addConstraint(Sketcher.Constraint("DistanceX", 1, 1, 1, 2, 8.0))
sketch11.addConstraint(Sketcher.Constraint("DistanceY", 0, 2, 0, 1, 2.0))
sketch11.addConstraint(Sketcher.Constraint("DistanceY", -1, 1, 0, 2, 7.0))
sketch11.addConstraint(Sketcher.Constraint("DistanceX", 0, 2, -1, 1, 8.5))
pocket7 = doc.addObject("PartDesign::Pocket", "Pocket006")
body.addObject(pocket7)
pocket7.Profile = sketch11
pocket7.Length = 2

doc.recompute()
